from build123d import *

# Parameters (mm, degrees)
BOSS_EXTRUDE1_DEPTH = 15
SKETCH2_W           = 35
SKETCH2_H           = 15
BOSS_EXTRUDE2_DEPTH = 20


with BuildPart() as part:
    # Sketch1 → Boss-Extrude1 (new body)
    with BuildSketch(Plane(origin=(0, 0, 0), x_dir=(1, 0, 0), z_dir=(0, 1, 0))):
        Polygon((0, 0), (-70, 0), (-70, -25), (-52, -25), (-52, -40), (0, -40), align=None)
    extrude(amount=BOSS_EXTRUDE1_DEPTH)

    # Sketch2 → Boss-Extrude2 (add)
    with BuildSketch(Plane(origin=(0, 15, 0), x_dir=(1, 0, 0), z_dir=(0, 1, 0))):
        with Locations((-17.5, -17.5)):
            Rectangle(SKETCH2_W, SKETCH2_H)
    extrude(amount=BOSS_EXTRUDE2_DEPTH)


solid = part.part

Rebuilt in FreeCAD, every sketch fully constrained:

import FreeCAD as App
import Part
import Sketcher

V = App.Vector


def add_polygon(sketch, points):
    """Adds a closed chain of lines whose ends are joined by coincident constraints."""
    first, n = sketch.GeometryCount, len(points)
    for a, b in zip(points, points[1:] + points[:1]):
        sketch.addGeometry(Part.LineSegment(App.Vector(*a, 0), App.Vector(*b, 0)), False)
    for i in range(n):
        sketch.addConstraint(Sketcher.Constraint("Coincident", first + i, 2, first + (i + 1) % n, 1))

doc = App.newDocument("Part")
body = doc.addObject("PartDesign::Body", "Body")

sketch1 = doc.addObject("Sketcher::SketchObject", "Sketch")
body.addObject(sketch1)
sketch1.AttachmentSupport = (doc.XZ_Plane, [""])
sketch1.MapMode = "FlatFace"
add_polygon(sketch1, [(0, 0), (-70, 0), (-70, 25), (-52, 25), (-52, 40), (0, 40)])
sketch1.addConstraint([
    Sketcher.Constraint("Horizontal", 0),
    Sketcher.Constraint("Vertical", 1),
    Sketcher.Constraint("Horizontal", 2),
    Sketcher.Constraint("Vertical", 3),
    Sketcher.Constraint("Horizontal", 4),
    Sketcher.Constraint("Vertical", 5),
    Sketcher.Constraint("Coincident", 5, 2, -1, 1),
    Sketcher.Constraint("DistanceX", 0, 2, 0, 1, 70.0),
    Sketcher.Constraint("DistanceX", 2, 1, 2, 2, 18.0),
    Sketcher.Constraint("DistanceY", 1, 1, 1, 2, 25.0),
    Sketcher.Constraint("DistanceY", 3, 1, 3, 2, 15.0),
])
pad1 = doc.addObject("PartDesign::Pad", "Pad")
body.addObject(pad1)
pad1.Profile = sketch1
pad1.Length = 15
pad1.Reversed = True

sketch2 = doc.addObject("Sketcher::SketchObject", "Sketch001")
body.addObject(sketch2)
sketch2.AttachmentSupport = (doc.XZ_Plane, [""])
sketch2.MapMode = "FlatFace"
sketch2.AttachmentOffset = App.Placement(V(0, 0, -15), App.Rotation())
add_polygon(sketch2, [(-35, 10), (-35, 25), (0, 25), (0, 10)])
sketch2.addConstraint([
    Sketcher.Constraint("Vertical", 0),
    Sketcher.Constraint("Horizontal", 1),
    Sketcher.Constraint("Vertical", 2),
    Sketcher.Constraint("Horizontal", 3),
    Sketcher.Constraint("PointOnObject", 1, 2, -2),
    Sketcher.Constraint("DistanceX", 1, 1, 1, 2, 35.0),
    Sketcher.Constraint("DistanceY", 0, 1, 0, 2, 15.0),
    Sketcher.Constraint("DistanceY", -1, 1, 0, 2, 25.0),
])
pad2 = doc.addObject("PartDesign::Pad", "Pad001")
body.addObject(pad2)
pad2.Profile = sketch2
pad2.Length = 20
pad2.Reversed = True

doc.recompute()
